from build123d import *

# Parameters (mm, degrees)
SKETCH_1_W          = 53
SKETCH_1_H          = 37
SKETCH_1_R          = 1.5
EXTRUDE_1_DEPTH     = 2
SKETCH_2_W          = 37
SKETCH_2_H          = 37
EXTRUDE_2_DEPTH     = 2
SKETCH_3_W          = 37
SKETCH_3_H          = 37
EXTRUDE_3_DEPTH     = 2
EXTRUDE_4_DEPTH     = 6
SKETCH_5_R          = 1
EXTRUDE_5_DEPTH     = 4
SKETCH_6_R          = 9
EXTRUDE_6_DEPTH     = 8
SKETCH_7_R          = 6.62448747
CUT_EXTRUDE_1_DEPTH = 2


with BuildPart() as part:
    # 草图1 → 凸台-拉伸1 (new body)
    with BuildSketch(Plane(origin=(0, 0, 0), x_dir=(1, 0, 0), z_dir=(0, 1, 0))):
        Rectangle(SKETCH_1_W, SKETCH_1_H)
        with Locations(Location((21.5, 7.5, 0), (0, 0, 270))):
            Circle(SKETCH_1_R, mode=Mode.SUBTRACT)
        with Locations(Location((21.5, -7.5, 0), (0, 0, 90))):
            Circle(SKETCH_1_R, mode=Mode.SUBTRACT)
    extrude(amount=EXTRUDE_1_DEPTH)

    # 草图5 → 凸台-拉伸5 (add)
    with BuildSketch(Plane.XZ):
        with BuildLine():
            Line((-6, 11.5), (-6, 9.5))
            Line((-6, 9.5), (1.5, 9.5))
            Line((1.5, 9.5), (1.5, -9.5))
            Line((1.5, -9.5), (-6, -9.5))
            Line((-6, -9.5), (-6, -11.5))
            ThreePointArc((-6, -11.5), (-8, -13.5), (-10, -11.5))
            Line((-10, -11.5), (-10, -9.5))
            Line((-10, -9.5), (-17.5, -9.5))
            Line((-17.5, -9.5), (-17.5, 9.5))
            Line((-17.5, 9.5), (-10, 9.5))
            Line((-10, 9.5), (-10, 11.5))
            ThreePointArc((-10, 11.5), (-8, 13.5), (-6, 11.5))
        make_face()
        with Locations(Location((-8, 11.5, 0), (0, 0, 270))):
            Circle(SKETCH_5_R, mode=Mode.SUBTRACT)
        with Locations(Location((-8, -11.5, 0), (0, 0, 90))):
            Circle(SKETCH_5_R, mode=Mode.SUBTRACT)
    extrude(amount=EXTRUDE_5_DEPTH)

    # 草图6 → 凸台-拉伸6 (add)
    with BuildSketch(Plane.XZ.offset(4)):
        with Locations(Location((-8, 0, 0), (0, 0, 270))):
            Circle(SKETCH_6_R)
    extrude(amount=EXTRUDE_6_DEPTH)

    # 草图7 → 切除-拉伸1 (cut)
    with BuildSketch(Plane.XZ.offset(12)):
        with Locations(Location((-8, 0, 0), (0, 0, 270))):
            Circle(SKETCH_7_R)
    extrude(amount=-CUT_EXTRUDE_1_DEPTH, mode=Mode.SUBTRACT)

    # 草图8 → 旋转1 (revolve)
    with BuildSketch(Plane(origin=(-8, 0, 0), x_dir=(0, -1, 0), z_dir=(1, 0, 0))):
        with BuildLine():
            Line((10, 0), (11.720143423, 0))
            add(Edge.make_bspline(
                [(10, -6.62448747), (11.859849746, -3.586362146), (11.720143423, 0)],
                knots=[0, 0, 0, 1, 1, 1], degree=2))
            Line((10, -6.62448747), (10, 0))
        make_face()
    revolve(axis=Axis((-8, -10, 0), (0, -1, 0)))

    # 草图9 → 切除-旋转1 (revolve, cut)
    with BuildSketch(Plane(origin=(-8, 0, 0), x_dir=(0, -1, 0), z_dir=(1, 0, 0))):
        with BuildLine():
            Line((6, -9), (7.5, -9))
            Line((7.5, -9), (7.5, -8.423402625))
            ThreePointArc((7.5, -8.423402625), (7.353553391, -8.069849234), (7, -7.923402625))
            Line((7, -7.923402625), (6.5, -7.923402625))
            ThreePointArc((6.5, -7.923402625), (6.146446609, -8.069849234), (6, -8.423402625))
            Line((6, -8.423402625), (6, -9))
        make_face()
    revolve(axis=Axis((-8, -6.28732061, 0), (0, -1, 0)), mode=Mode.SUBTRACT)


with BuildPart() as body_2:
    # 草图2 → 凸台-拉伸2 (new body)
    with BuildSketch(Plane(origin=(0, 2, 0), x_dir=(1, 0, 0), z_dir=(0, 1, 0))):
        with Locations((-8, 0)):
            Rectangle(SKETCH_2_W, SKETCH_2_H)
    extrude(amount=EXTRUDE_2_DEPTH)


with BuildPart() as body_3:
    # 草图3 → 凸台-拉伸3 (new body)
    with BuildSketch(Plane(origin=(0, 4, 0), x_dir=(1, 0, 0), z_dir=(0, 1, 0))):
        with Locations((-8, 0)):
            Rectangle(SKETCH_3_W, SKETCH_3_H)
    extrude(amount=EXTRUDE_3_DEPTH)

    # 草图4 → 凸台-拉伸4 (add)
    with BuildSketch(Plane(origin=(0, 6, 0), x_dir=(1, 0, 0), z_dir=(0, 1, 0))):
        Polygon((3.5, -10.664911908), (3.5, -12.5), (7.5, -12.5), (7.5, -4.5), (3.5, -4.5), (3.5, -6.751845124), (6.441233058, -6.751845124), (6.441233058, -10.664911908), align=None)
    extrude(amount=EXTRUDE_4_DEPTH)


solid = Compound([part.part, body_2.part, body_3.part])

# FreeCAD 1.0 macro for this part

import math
import FreeCAD as App
import Part
import Sketcher
from FreeCAD import Vector

doc = App.newDocument("Part")
body = doc.addObject("PartDesign::Body", "Body")

# Sketch on XZ plane
sketch1 = body.newObject("Sketcher::SketchObject", "Sketch")
sketch1.AttachmentSupport = (doc.getObject("XZ_Plane"), [""])
sketch1.MapMode = "FlatFace"
sketch1.addGeometry([
    Part.LineSegment(Vector(-26.5, -18.5, 0), Vector(-26.5, 18.5, 0)),  # 0
    Part.LineSegment(Vector(-26.5, 18.5, 0), Vector(26.5, 18.5, 0)),  # 1
    Part.LineSegment(Vector(26.5, 18.5, 0), Vector(26.5, -18.5, 0)),  # 2
    Part.LineSegment(Vector(26.5, -18.5, 0), Vector(-26.5, -18.5, 0)),  # 3
    Part.Circle(Vector(21.5, 7.5, 0), Vector(0, 0, 1), 1.5),  # 4
    Part.Circle(Vector(21.5, -7.5, 0), Vector(0, 0, 1), 1.5),  # 5
], False)
sketch1.addConstraint([
    Sketcher.Constraint("Coincident", 0, 2, 1, 1),
    Sketcher.Constraint("Coincident", 1, 2, 2, 1),
    Sketcher.Constraint("Coincident", 2, 2, 3, 1),
    Sketcher.Constraint("Coincident", 3, 2, 0, 1),
    Sketcher.Constraint("Vertical", 0),
    Sketcher.Constraint("Horizontal", 1),
    Sketcher.Constraint("Vertical", 2),
    Sketcher.Constraint("Horizontal", 3),
    Sketcher.Constraint("Equal", 4, 5),
    Sketcher.Constraint("Symmetric", 0, 2, 2, 2, -1, 1),
    Sketcher.Constraint("Symmetric", 4, 3, 5, 3, -1),
    Sketcher.Constraint("Diameter", 4, 3.0),
    Sketcher.Constraint("DistanceX", 1, 1, 1, 2, 53.0),
    Sketcher.Constraint("DistanceY", 0, 1, 0, 2, 37.0),
    Sketcher.Constraint("DistanceY", 5, 3, 4, 3, 15.0),
    Sketcher.Constraint("DistanceX", 0, 2, 4, 3, 48.0),
])
pad1 = body.newObject("PartDesign::Pad", "Pad")
pad1.Profile = sketch1
pad1.Length = 2
pad1.Reversed = True

# Sketch on XZ plane
sketch2 = body.newObject("Sketcher::SketchObject", "Sketch001")
sketch2.AttachmentSupport = (doc.getObject("XZ_Plane"), [""])
sketch2.MapMode = "FlatFace"
sketch2.addGeometry([
    Part.LineSegment(Vector(-6, 9.5, 0), Vector(-6, 11.5, 0)),  # 0
    Part.ArcOfCircle(Part.Circle(Vector(-8, 11.5, 0), Vector(0, 0, 1), 2), math.radians(0), math.radians(180)),  # 1
    Part.LineSegment(Vector(-10, 11.5, 0), Vector(-10, 9.5, 0)),  # 2
    Part.LineSegment(Vector(-10, 9.5, 0), Vector(-17.5, 9.5, 0)),  # 3
    Part.LineSegment(Vector(-17.5, 9.5, 0), Vector(-17.5, -9.5, 0)),  # 4
    Part.LineSegment(Vector(-17.5, -9.5, 0), Vector(-10, -9.5, 0)),  # 5
    Part.LineSegment(Vector(-10, -9.5, 0), Vector(-10, -11.5, 0)),  # 6
    Part.ArcOfCircle(Part.Circle(Vector(-8, -11.5, 0), Vector(0, 0, 1), 2), math.radians(180), math.radians(360)),  # 7
    Part.LineSegment(Vector(-6, -11.5, 0), Vector(-6, -9.5, 0)),  # 8
    Part.LineSegment(Vector(-6, -9.5, 0), Vector(1.5, -9.5, 0)),  # 9
    Part.LineSegment(Vector(1.5, -9.5, 0), Vector(1.5, 9.5, 0)),  # 10
    Part.LineSegment(Vector(1.5, 9.5, 0), Vector(-6, 9.5, 0)),  # 11
    Part.Circle(Vector(-8, -11.5, 0), Vector(0, 0, 1), 1),  # 12
    Part.Circle(Vector(-8, 11.5, 0), Vector(0, 0, 1), 1),  # 13
], False)
sketch2.addConstraint([
    Sketcher.Constraint("Tangent", 0, 2, 1, 1),
    Sketcher.Constraint("Tangent", 1, 2, 2, 1),
    Sketcher.Constraint("Coincident", 2, 2, 3, 1),
    Sketcher.Constraint("Coincident", 3, 2, 4, 1),
    Sketcher.Constraint("Coincident", 4, 2, 5, 1),
    Sketcher.Constraint("Coincident", 5, 2, 6, 1),
    Sketcher.Constraint("Tangent", 6, 2, 7, 1),
    Sketcher.Constraint("Tangent", 7, 2, 8, 1),
    Sketcher.Constraint("Coincident", 8, 2, 9, 1),
    Sketcher.Constraint("Coincident", 9, 2, 10, 1),
    Sketcher.Constraint("Coincident", 10, 2, 11, 1),
    Sketcher.Constraint("Coincident", 11, 2, 0, 1),
    Sketcher.Constraint("Vertical", 0),
    Sketcher.Constraint("Vertical", 2),
    Sketcher.Constraint("Horizontal", 3),
    Sketcher.Constraint("Vertical", 4),
    Sketcher.Constraint("Horizontal", 5),
    Sketcher.Constraint("Vertical", 6),
    Sketcher.Constraint("Vertical", 8),
    Sketcher.Constraint("Horizontal", 9),
    Sketcher.Constraint("Vertical", 10),
    Sketcher.Constraint("Horizontal", 11),
    Sketcher.Constraint("Coincident", 12, 3, 7, 3),
    Sketcher.Constraint("Coincident", 13, 3, 1, 3),
    Sketcher.Constraint("Equal", 1, 7),
    Sketcher.Constraint("Equal", 12, 13),
    Sketcher.Constraint("Symmetric", 1, 3, 7, 3, -1),
    Sketcher.Constraint("Horizontal", 5, 2, 8, 2),
    Sketcher.Constraint("Horizontal", 3, 2, 10, 2),
    Sketcher.Constraint("Equal", 5, 9),
    Sketcher.Constraint("Equal", 2, 6),
    Sketcher.Constraint("Diameter", 12, 2.0),
    Sketcher.Constraint("Radius", 1, 2.0),
    Sketcher.Constraint("DistanceY", 0, 1, 0, 2, 2.0),
    Sketcher.Constraint("DistanceY", 4, 2, 4, 1, 19.0),
    Sketcher.Constraint("DistanceX", 3, 2, 3, 1, 7.5),
    Sketcher.Constraint("DistanceX", 1, 3, -1, 1, 8.0),
])
pad2 = body.newObject("PartDesign::Pad", "Pad001")
pad2.Profile = sketch2
pad2.Length = 4

# Sketch on XZ plane
sketch3 = body.newObject("Sketcher::SketchObject", "Sketch002")
sketch3.AttachmentSupport = (doc.getObject("XZ_Plane"), [""])
sketch3.MapMode = "FlatFace"
sketch3.AttachmentOffset = App.Placement(Vector(0, 0, 4), App.Rotation())
sketch3.addGeometry(Part.Circle(Vector(-8, 0, 0), Vector(0, 0, 1), 9), False)
sketch3.addConstraint([
    Sketcher.Constraint("PointOnObject", 0, 3, -1),
    Sketcher.Constraint("Diameter", 0, 18.0),
    Sketcher.Constraint("DistanceX", 0, 3, -1, 1, 8.0),
])
pad3 = body.newObject("PartDesign::Pad", "Pad002")
pad3.Profile = sketch3
pad3.Length = 8

# Sketch on XZ plane
sketch4 = body.newObject("Sketcher::SketchObject", "Sketch003")
sketch4.AttachmentSupport = (doc.getObject("XZ_Plane"), [""])
sketch4.MapMode = "FlatFace"
sketch4.AttachmentOffset = App.Placement(Vector(0, 0, 12), App.Rotation())
sketch4.addGeometry(Part.Circle(Vector(-8, 0, 0), Vector(0, 0, 1), 7), False)
sketch4.addConstraint([
    Sketcher.Constraint("PointOnObject", 0, 3, -1),
    Sketcher.Constraint("DistanceX", 0, 3, -1, 1, 8.0),
    Sketcher.Constraint("Diameter", 0, 13.248975),
])
pocket1 = body.newObject("PartDesign::Pocket", "Pocket")
pocket1.Profile = sketch4
pocket1.Length = 2

# Sketch on YZ plane
sketch5 = body.newObject("Sketcher::SketchObject", "Sketch004")
sketch5.AttachmentSupport = (doc.getObject("YZ_Plane"), [""])
sketch5.MapMode = "FlatFace"
sketch5.AttachmentOffset = App.Placement(Vector(0, 0, -8), App.Rotation())
sketch5.addGeometry([
    Part.LineSegment(Vector(-11.720143, 0, 0), Vector(-10, 0, 0)),
    Part.LineSegment(Vector(-10, 0, 0), Vector(-10, 6.624487, 0)),
    Part.BSplineCurve([Vector(-10, 6.624487, 0), Vector(-11.85985, 3.586362, 0), Vector(-11.720143, 0, 0)], [3, 3], [0, 1], False, 2, [1, 1, 1], False),
], False)
sketch5.addConstraint([
    Sketcher.Constraint("Block", 2),
    Sketcher.Constraint("Coincident", 0, 2, 1, 1),
    Sketcher.Constraint("Coincident", 1, 2, 2, 1),
    Sketcher.Constraint("Coincident", 2, 2, 0, 1),
    Sketcher.Constraint("Horizontal", 0),
    Sketcher.Constraint("Vertical", 1),
])
revolution = body.newObject("PartDesign::Revolution", "Revolution")
revolution.Profile = sketch5
revolution.ReferenceAxis = (sketch5, ["H_Axis"])
revolution.Angle = 360

# Sketch on YZ plane
sketch6 = body.newObject("Sketcher::SketchObject", "Sketch005")
sketch6.AttachmentSupport = (doc.getObject("YZ_Plane"), [""])
sketch6.MapMode = "FlatFace"
sketch6.AttachmentOffset = App.Placement(Vector(0, 0, -8), App.Rotation())
sketch6.addGeometry([
    Part.LineSegment(Vector(-6, 9, 0), Vector(-7.5, 9, 0)),  # 0
    Part.LineSegment(Vector(-7.5, 9, 0), Vector(-7.5, 8.42, 0)),  # 1
    Part.ArcOfCircle(Part.Circle(Vector(-7, 8.42, 0), Vector(0, 0, 1), 0.5), math.radians(180), math.radians(270)),  # 2
    Part.LineSegment(Vector(-7, 7.92, 0), Vector(-6.5, 7.92, 0)),  # 3
    Part.ArcOfCircle(Part.Circle(Vector(-6.5, 8.42, 0), Vector(0, 0, 1), 0.5), math.radians(-90), math.radians(0)),  # 4
    Part.LineSegment(Vector(-6, 8.42, 0), Vector(-6, 9, 0)),  # 5
], False)
sketch6.addConstraint([
    Sketcher.Constraint("Coincident", 0, 2, 1, 1),
    Sketcher.Constraint("Tangent", 1, 2, 2, 1),
    Sketcher.Constraint("Tangent", 2, 2, 3, 1),
    Sketcher.Constraint("Tangent", 3, 2, 4, 1),
    Sketcher.Constraint("Tangent", 4, 2, 5, 1),
    Sketcher.Constraint("Coincident", 5, 2, 0, 1),
    Sketcher.Constraint("Horizontal", 0),
    Sketcher.Constraint("Vertical", 1),
    Sketcher.Constraint("Horizontal", 3),
    Sketcher.Constraint("Vertical", 5),
    Sketcher.Constraint("Equal", 2, 4),
    Sketcher.Constraint("Radius", 2, 0.5),
    Sketcher.Constraint("DistanceX", 0, 2, 0, 1, 1.5),
    Sketcher.Constraint("DistanceX", 2, 3, -1, 1, 7.0),
    Sketcher.Constraint("DistanceY", -1, 1, 0, 2, 9.0),
    Sketcher.Constraint("DistanceY", 1, 2, 1, 1, 0.576597),
])
groove = body.newObject("PartDesign::Groove", "Groove")
groove.Profile = sketch6
groove.ReferenceAxis = (sketch6, ["H_Axis"])
groove.Angle = 360
body2 = doc.addObject("PartDesign::Body", "Body001")

# Sketch on XZ plane
sketch7 = body2.newObject("Sketcher::SketchObject", "Sketch006")
sketch7.AttachmentSupport = (doc.getObject("XZ_Plane001"), [""])
sketch7.MapMode = "FlatFace"
sketch7.AttachmentOffset = App.Placement(Vector(0, 0, -2), App.Rotation())
sketch7.addGeometry([
    Part.LineSegment(Vector(-26, -18, 0), Vector(-26, 18, 0)),
    Part.LineSegment(Vector(-26, 18, 0), Vector(10, 18, 0)),
    Part.LineSegment(Vector(10, 18, 0), Vector(10, -18, 0)),
    Part.LineSegment(Vector(10, -18, 0), Vector(-26, -18, 0)),
], False)
sketch7.addConstraint([
    Sketcher.Constraint("Coincident", 0, 2, 1, 1),
    Sketcher.Constraint("Coincident", 1, 2, 2, 1),
    Sketcher.Constraint("Coincident", 2, 2, 3, 1),
    Sketcher.Constraint("Coincident", 3, 2, 0, 1),
    Sketcher.Constraint("Vertical", 0),
    Sketcher.Constraint("Horizontal", 1),
    Sketcher.Constraint("Vertical", 2),
    Sketcher.Constraint("Horizontal", 3),
    Sketcher.Constraint("Equal", 3, 0),
    Sketcher.Constraint("DistanceX", 1, 1, 1, 2, 37.0),
    Sketcher.Constraint("DistanceX", 0, 2, -1, 1, 26.5),
    Sketcher.Constraint("DistanceY", -1, 1, 0, 2, 18.5),
])
pad4 = body2.newObject("PartDesign::Pad", "Pad003")
pad4.Profile = sketch7
pad4.Length = 2
pad4.Reversed = True
body3 = doc.addObject("PartDesign::Body", "Body002")

# Sketch on XZ plane
sketch8 = body3.newObject("Sketcher::SketchObject", "Sketch007")
sketch8.AttachmentSupport = (doc.getObject("XZ_Plane002"), [""])
sketch8.MapMode = "FlatFace"
sketch8.AttachmentOffset = App.Placement(Vector(0, 0, -4), App.Rotation())
sketch8.addGeometry([
    Part.LineSegment(Vector(-26, -18, 0), Vector(-26, 18, 0)),
    Part.LineSegment(Vector(-26, 18, 0), Vector(10, 18, 0)),
    Part.LineSegment(Vector(10, 18, 0), Vector(10, -18, 0)),
    Part.LineSegment(Vector(10, -18, 0), Vector(-26, -18, 0)),
], False)
sketch8.addConstraint([
    Sketcher.Constraint("Coincident", 0, 2, 1, 1),
    Sketcher.Constraint("Coincident", 1, 2, 2, 1),
    Sketcher.Constraint("Coincident", 2, 2, 3, 1),
    Sketcher.Constraint("Coincident", 3, 2, 0, 1),
    Sketcher.Constraint("Vertical", 0),
    Sketcher.Constraint("Horizontal", 1),
    Sketcher.Constraint("Vertical", 2),
    Sketcher.Constraint("Horizontal", 3),
    Sketcher.Constraint("Equal", 3, 0),
    Sketcher.Constraint("DistanceX", 1, 1, 1, 2, 37.0),
    Sketcher.Constraint("DistanceX", 0, 2, -1, 1, 26.5),
    Sketcher.Constraint("DistanceY", -1, 1, 0, 2, 18.5),
])
pad5 = body3.newObject("PartDesign::Pad", "Pad004")
pad5.Profile = sketch8
pad5.Length = 2
pad5.Reversed = True

# Sketch on XZ plane
sketch9 = body3.newObject("Sketcher::SketchObject", "Sketch008")
sketch9.AttachmentSupport = (doc.getObject("XZ_Plane002"), [""])
sketch9.MapMode = "FlatFace"
sketch9.AttachmentOffset = App.Placement(Vector(0, 0, -6), App.Rotation())
sketch9.addGeometry([
    Part.LineSegment(Vector(3.5, 10.7, 0), Vector(3.5, 12.5, 0)),  # 0
    Part.LineSegment(Vector(3.5, 12.5, 0), Vector(7.5, 12.5, 0)),  # 1
    Part.LineSegment(Vector(7.5, 12.5, 0), Vector(7.5, 4.5, 0)),  # 2
    Part.LineSegment(Vector(7.5, 4.5, 0), Vector(3.5, 4.5, 0)),  # 3
    Part.LineSegment(Vector(3.5, 4.5, 0), Vector(3.5, 6.8, 0)),  # 4
    Part.LineSegment(Vector(3.5, 6.8, 0), Vector(6.4, 6.8, 0)),  # 5
    Part.LineSegment(Vector(6.4, 6.8, 0), Vector(6.4, 10.7, 0)),  # 6
    Part.LineSegment(Vector(6.4, 10.7, 0), Vector(3.5, 10.7, 0)),  # 7
], False)
sketch9.addConstraint([
    Sketcher.Constraint("Coincident", 0, 2, 1, 1),
    Sketcher.Constraint("Coincident", 1, 2, 2, 1),
    Sketcher.Constraint("Coincident", 2, 2, 3, 1),
    Sketcher.Constraint("Coincident", 3, 2, 4, 1),
    Sketcher.Constraint("Coincident", 4, 2, 5, 1),
    Sketcher.Constraint("Coincident", 5, 2, 6, 1),
    Sketcher.Constraint("Coincident", 6, 2, 7, 1),
    Sketcher.Constraint("Coincident", 7, 2, 0, 1),
    Sketcher.Constraint("Vertical", 0),
    Sketcher.Constraint("Horizontal", 1),
    Sketcher.Constraint("Vertical", 2),
    Sketcher.Constraint("Horizontal", 3),
    Sketcher.Constraint("Vertical", 4),
    Sketcher.Constraint("Horizontal", 5),
    Sketcher.Constraint("Vertical", 6),
    Sketcher.Constraint("Horizontal", 7),
    Sketcher.Constraint("Vertical", 0, 2, 3, 2),
    Sketcher.Constraint("DistanceX", 1, 1, 1, 2, 4.0),
    Sketcher.Constraint("DistanceY", 2, 2, 2, 1, 8.0),
    Sketcher.Constraint("DistanceX", -1, 1, 0, 2, 3.5),
    Sketcher.Constraint("DistanceY", -1, 1, 0, 2, 12.5),
    Sketcher.Constraint("DistanceY", 0, 1, 0, 2, 1.835088),
    Sketcher.Constraint("DistanceX", 5, 1, 5, 2, 2.941233),
    Sketcher.Constraint("DistanceY", 4, 1, 4, 2, 2.251845),
])
pad6 = body3.newObject("PartDesign::Pad", "Pad005")
pad6.Profile = sketch9
pad6.Length = 6
pad6.Reversed = True

doc.recompute()
